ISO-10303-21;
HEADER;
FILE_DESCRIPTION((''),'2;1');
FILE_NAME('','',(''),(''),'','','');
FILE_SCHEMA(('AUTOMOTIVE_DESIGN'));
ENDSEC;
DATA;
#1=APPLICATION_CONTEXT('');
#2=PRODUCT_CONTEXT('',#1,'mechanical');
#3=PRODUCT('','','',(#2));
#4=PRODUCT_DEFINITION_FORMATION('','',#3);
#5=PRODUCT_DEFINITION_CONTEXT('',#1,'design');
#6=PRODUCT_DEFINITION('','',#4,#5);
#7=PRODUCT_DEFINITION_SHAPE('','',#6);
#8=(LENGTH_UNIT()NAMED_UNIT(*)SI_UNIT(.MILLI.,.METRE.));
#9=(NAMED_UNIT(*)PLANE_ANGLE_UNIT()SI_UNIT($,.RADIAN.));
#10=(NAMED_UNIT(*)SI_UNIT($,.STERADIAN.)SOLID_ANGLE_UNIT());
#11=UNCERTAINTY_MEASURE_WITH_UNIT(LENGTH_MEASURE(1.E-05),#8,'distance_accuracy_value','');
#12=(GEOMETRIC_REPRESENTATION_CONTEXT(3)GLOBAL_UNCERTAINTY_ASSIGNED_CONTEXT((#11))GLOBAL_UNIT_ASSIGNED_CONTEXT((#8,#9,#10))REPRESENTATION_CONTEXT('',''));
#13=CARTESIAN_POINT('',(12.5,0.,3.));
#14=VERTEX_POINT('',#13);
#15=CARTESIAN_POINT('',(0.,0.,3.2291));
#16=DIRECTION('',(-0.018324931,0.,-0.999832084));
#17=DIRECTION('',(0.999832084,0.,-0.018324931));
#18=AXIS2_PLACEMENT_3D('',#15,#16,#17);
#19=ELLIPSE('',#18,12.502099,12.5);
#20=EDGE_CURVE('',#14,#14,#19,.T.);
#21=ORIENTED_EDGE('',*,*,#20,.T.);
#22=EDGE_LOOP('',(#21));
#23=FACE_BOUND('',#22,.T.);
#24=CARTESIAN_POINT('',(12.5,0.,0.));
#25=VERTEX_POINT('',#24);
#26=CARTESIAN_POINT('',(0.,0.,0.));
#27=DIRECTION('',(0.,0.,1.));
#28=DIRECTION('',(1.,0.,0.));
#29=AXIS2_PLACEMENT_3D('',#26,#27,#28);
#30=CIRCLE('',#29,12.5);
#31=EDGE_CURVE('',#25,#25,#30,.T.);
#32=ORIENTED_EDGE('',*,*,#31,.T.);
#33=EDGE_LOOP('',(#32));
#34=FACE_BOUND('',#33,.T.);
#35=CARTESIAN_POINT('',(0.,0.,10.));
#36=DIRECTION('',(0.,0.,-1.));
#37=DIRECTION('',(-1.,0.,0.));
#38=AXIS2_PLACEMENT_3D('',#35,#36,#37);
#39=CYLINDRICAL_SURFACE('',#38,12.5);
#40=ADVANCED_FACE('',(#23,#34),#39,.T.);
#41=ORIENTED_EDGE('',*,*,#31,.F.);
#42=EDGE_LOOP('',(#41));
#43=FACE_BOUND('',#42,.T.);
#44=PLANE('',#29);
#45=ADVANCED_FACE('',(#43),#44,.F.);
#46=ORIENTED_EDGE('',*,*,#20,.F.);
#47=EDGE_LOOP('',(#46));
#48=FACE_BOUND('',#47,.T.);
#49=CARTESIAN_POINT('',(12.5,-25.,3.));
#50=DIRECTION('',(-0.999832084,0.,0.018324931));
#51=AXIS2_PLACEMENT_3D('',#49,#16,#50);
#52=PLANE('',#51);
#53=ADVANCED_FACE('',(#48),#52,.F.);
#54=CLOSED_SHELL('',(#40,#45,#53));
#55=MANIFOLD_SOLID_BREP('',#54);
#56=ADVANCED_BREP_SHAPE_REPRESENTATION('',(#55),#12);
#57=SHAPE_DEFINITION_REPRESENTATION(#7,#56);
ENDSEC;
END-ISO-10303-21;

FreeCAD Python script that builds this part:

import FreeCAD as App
import Part
import Sketcher
from FreeCAD import Vector
Q = App.Units.Quantity


def add_polygon(sketch, points):
    """Adds a closed chain of lines whose ends are joined by coincident constraints."""
    first, n = sketch.GeometryCount, len(points)
    for a, b in zip(points, points[1:] + points[:1]):
        sketch.addGeometry(Part.LineSegment(App.Vector(*a, 0), App.Vector(*b, 0)), False)
    for i in range(n):
        sketch.addConstraint(Sketcher.Constraint("Coincident", first + i, 2, first + (i + 1) % n, 1))

doc = App.newDocument("Part")
body = doc.addObject("PartDesign::Body", "Body")

# Sketch on XY plane
sketch1 = doc.addObject("Sketcher::SketchObject", "Sketch")
body.addObject(sketch1)
sketch1.AttachmentSupport = (doc.XY_Plane, [""])
sketch1.MapMode = "FlatFace"
sketch1.addGeometry(Part.Circle(Vector(0, 0, 0), Vector(0, 0, 1), 12), False)
sketch1.addConstraint([
    Sketcher.Constraint("Coincident", 0, 3, -1, 1),
    Sketcher.Constraint("Diameter", 0, Q("25 mm")),
])
pad1 = doc.addObject("PartDesign::Pad", "Pad")
body.addObject(pad1)
pad1.Profile = sketch1
pad1.Length = 10

# Sketch on XZ plane
sketch2 = doc.addObject("Sketcher::SketchObject", "Sketch001")
body.addObject(sketch2)
sketch2.AttachmentSupport = (doc.XZ_Plane, [""])
sketch2.MapMode = "FlatFace"
add_polygon(sketch2, [(12, 3), (-17, 4), (-17, 14), (18, 14), (18, 3)])  # lines 0-4
sketch2.addConstraint([
    Sketcher.Constraint("Vertical", 1),
    Sketcher.Constraint("Horizontal", 2),
    Sketcher.Constraint("Vertical", 3),
    Sketcher.Constraint("Horizontal", 4),
    Sketcher.Constraint("DistanceY", -1, 1, 3, 2, Q("3 mm")),
    Sketcher.Constraint("DistanceX", -1, 1, 4, 2, Q("12.5 mm")),
    Sketcher.Constraint("Angle", 0, Q("178.95 deg")),
    Sketcher.Constraint("DistanceX", 2, 1, 2, 2, Q("34.408831 mm")),
    Sketcher.Constraint("DistanceX", 4, 2, 4, 1, Q("5.27158 mm")),
    Sketcher.Constraint("DistanceY", 3, 2, 3, 1, Q("11.471861 mm")),
])
pocket1 = doc.addObject("PartDesign::Pocket", "Pocket")
body.addObject(pocket1)
pocket1.Profile = sketch2
pocket1.Length = 50
pocket1.Midplane = True

doc.recompute()
